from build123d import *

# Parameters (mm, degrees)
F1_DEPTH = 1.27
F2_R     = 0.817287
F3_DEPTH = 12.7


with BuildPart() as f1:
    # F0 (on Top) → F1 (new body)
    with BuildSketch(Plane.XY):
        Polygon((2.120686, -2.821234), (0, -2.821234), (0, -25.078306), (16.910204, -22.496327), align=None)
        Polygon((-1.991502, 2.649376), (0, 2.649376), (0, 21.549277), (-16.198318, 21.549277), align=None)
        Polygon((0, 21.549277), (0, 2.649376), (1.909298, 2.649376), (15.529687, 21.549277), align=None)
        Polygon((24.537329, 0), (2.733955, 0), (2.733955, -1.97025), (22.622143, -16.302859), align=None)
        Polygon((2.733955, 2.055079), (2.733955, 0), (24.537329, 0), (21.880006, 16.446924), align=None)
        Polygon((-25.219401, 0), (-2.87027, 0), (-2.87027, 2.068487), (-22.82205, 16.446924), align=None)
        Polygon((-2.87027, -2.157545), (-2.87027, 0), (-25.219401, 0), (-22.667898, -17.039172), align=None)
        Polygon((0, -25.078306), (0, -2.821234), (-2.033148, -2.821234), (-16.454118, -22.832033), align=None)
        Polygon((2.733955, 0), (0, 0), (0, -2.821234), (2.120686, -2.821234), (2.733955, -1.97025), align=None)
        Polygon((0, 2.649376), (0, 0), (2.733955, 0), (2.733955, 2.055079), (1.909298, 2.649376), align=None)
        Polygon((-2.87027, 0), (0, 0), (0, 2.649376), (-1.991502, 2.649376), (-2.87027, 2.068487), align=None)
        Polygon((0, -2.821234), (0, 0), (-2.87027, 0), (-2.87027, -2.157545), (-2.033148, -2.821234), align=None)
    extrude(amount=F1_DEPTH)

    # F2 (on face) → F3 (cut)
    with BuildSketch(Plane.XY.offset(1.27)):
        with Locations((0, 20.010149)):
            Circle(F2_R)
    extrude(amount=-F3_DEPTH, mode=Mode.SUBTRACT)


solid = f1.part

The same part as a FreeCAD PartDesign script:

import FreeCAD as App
import Part
import Sketcher

V = App.Vector
Q = App.Units.Quantity

doc = App.newDocument("Part")
body = doc.addObject("PartDesign::Body", "Body")

sketch1 = body.newObject("Sketcher::SketchObject", "Sketch")
sketch1.AttachmentSupport = (doc.getObject("XY_Plane"), [""])
sketch1.MapMode = "FlatFace"
sketch1.addGeometry(Part.LineSegment(V(-2.033148, -2.821234, 0), V(-16.454118, -22.832033, 0)), False)
sketch1.addGeometry(Part.LineSegment(V(-16.454118, -22.832033, 0), V(0, -25.078306, 0)), False)
sketch1.addGeometry(Part.LineSegment(V(0, -25.078306, 0), V(16.910204, -22.496327, 0)), False)
sketch1.addGeometry(Part.LineSegment(V(16.910204, -22.496327, 0), V(2.120686, -2.821234, 0)), False)
sketch1.addGeometry(Part.LineSegment(V(2.120686, -2.821234, 0), V(2.733955, -1.97025, 0)), False)
sketch1.addGeometry(Part.LineSegment(V(2.733955, -1.97025, 0), V(22.622143, -16.302859, 0)), False)
sketch1.addGeometry(Part.LineSegment(V(22.622143, -16.302859, 0), V(24.537329, 0, 0)), False)
sketch1.addGeometry(Part.LineSegment(V(24.537329, 0, 0), V(21.880006, 16.446924, 0)), False)
sketch1.addGeometry(Part.LineSegment(V(21.880006, 16.446924, 0), V(2.733955, 2.055079, 0)), False)
sketch1.addGeometry(Part.LineSegment(V(2.733955, 2.055079, 0), V(1.909298, 2.649376, 0)), False)
sketch1.addGeometry(Part.LineSegment(V(1.909298, 2.649376, 0), V(15.529687, 21.549277, 0)), False)
sketch1.addGeometry(Part.LineSegment(V(15.529687, 21.549277, 0), V(-16.198318, 21.549277, 0)), False)
sketch1.addGeometry(Part.LineSegment(V(-16.198318, 21.549277, 0), V(-1.991502, 2.649376, 0)), False)
sketch1.addGeometry(Part.LineSegment(V(-1.991502, 2.649376, 0), V(-2.87027, 2.068487, 0)), False)
sketch1.addGeometry(Part.LineSegment(V(-2.87027, 2.068487, 0), V(-22.82205, 16.446924, 0)), False)
sketch1.addGeometry(Part.LineSegment(V(-22.82205, 16.446924, 0), V(-25.219401, 0, 0)), False)
sketch1.addGeometry(Part.LineSegment(V(-25.219401, 0, 0), V(-22.667898, -17.039172, 0)), False)
sketch1.addGeometry(Part.LineSegment(V(-22.667898, -17.039172, 0), V(-2.87027, -2.157545, 0)), False)
sketch1.addGeometry(Part.LineSegment(V(-2.87027, -2.157545, 0), V(-2.033148, -2.821234, 0)), False)
sketch1.addConstraint(Sketcher.Constraint("Coincident", 0, 2, 1, 1))
sketch1.addConstraint(Sketcher.Constraint("Coincident", 1, 2, 2, 1))
sketch1.addConstraint(Sketcher.Constraint("Coincident", 2, 2, 3, 1))
sketch1.addConstraint(Sketcher.Constraint("Coincident", 3, 2, 4, 1))
sketch1.addConstraint(Sketcher.Constraint("Coincident", 4, 2, 5, 1))
sketch1.addConstraint(Sketcher.Constraint("Coincident", 5, 2, 6, 1))
sketch1.addConstraint(Sketcher.Constraint("Coincident", 6, 2, 7, 1))
sketch1.addConstraint(Sketcher.Constraint("Coincident", 7, 2, 8, 1))
sketch1.addConstraint(Sketcher.Constraint("Coincident", 8, 2, 9, 1))
sketch1.addConstraint(Sketcher.Constraint("Coincident", 9, 2, 10, 1))
sketch1.addConstraint(Sketcher.Constraint("Coincident", 10, 2, 11, 1))
sketch1.addConstraint(Sketcher.Constraint("Coincident", 11, 2, 12, 1))
sketch1.addConstraint(Sketcher.Constraint("Coincident", 12, 2, 13, 1))
sketch1.addConstraint(Sketcher.Constraint("Coincident", 13, 2, 14, 1))
sketch1.addConstraint(Sketcher.Constraint("Coincident", 14, 2, 15, 1))
sketch1.addConstraint(Sketcher.Constraint("Coincident", 15, 2, 16, 1))
sketch1.addConstraint(Sketcher.Constraint("Coincident", 16, 2, 17, 1))
sketch1.addConstraint(Sketcher.Constraint("Coincident", 17, 2, 18, 1))
sketch1.addConstraint(Sketcher.Constraint("Coincident", 18, 2, 0, 1))
sketch1.addConstraint(Sketcher.Constraint("Horizontal", 11))
sketch1.addConstraint(Sketcher.Constraint("PointOnObject", 1, 2, -2))
sketch1.addConstraint(Sketcher.Constraint("PointOnObject", 6, 2, -1))
sketch1.addConstraint(Sketcher.Constraint("PointOnObject", 15, 2, -1))
sketch1.addConstraint(Sketcher.Constraint("DistanceX", 0, 2, -1, 1, Q("0.6477999 in")))
sketch1.addConstraint(Sketcher.Constraint("Distance", 3, Q("24.6138 mm")))
sketch1.addConstraint(Sketcher.Constraint("DistanceX", 15, 2, -1, 1, Q("25.219401 mm")))
sketch1.addConstraint(Sketcher.Constraint("DistanceX", 16, 2, -1, 1, Q("22.667898 mm")))
sketch1.addConstraint(Sketcher.Constraint("DistanceY", 0, 2, 3, 2, Q("20.010799 mm")))
sketch1.addConstraint(Sketcher.Constraint("DistanceY", 9, 2, 10, 2, Q("18.899901 mm")))
sketch1.addConstraint(Sketcher.Constraint("DistanceY", 8, 2, 10, 2, Q("19.494198 mm")))
sketch1.addConstraint(Sketcher.Constraint("DistanceX", 12, 2, 9, 2, Q("3.9008 mm")))
sketch1.addConstraint(Sketcher.Constraint("DistanceY", 12, 2, 11, 2, Q("18.899901 mm")))
sketch1.addConstraint(Sketcher.Constraint("DistanceX", 15, 2, 12, 2, Q("23.227899 mm")))
sketch1.addConstraint(Sketcher.Constraint("Distance", 4, Q("1.048939 mm")))
sketch1.addConstraint(Sketcher.Constraint("Distance", 5, Q("24.514561 mm")))
sketch1.addConstraint(Sketcher.Constraint("Distance", 8, Q("23.951962 mm")))
sketch1.addConstraint(Sketcher.Constraint("Distance", 9, Q("1.016488 mm")))
sketch1.addConstraint(Sketcher.Constraint("Distance", 10, Q("23.296379 mm")))
sketch1.addConstraint(Sketcher.Constraint("Distance", 15, Q("16.620728 mm")))
sketch1.addConstraint(Sketcher.Constraint("Distance", 16, Q("17.229148 mm")))
sketch1.addConstraint(Sketcher.Constraint("DistanceX", 11, 2, 11, 1, Q("31.728005 mm")))
sketch1.addConstraint(Sketcher.Constraint("DistanceY", 4, 2, -1, 1, Q("1.97025 mm")))
sketch1.addConstraint(Sketcher.Constraint("DistanceY", 5, 2, -1, 1, Q("16.302859 mm")))
sketch1.addConstraint(Sketcher.Constraint("DistanceX", -1, 1, 6, 2, Q("24.537329 mm")))
sketch1.addConstraint(Sketcher.Constraint("DistanceY", -1, 1, 8, 2, Q("2.055079 mm")))
sketch1.addConstraint(Sketcher.Constraint("DistanceX", 13, 2, -1, 1, Q("2.87027 mm")))
sketch1.addConstraint(Sketcher.Constraint("DistanceX", 14, 2, -1, 1, Q("22.82205 mm")))
sketch1.addConstraint(Sketcher.Constraint("DistanceX", 17, 2, -1, 1, Q("2.87027 mm")))
sketch1.addConstraint(Sketcher.Constraint("DistanceX", 18, 2, -1, 1, Q("2.033148 mm")))
sketch1.addConstraint(Sketcher.Constraint("DistanceY", 1, 2, 2, 2, Q("2.581979 mm")))
sketch1.addConstraint(Sketcher.Constraint("DistanceX", 3, 2, 2, 2, Q("14.789518 mm")))
sketch1.addConstraint(Sketcher.Constraint("DistanceX", 3, 2, 4, 2, Q("0.613269 mm")))
sketch1.addConstraint(Sketcher.Constraint("DistanceX", 0, 2, 5, 2, Q("39.076261 mm")))
sketch1.addConstraint(Sketcher.Constraint("DistanceX", 4, 2, 7, 2, Q("19.146051 mm")))
sketch1.addConstraint(Sketcher.Constraint("DistanceY", 13, 2, 12, 2, Q("0.580889 mm")))
sketch1.addConstraint(Sketcher.Constraint("DistanceY", 17, 2, 12, 2, Q("4.806921 mm")))
sketch1.addConstraint(Sketcher.Constraint("DistanceY", 18, 2, 17, 2, Q("0.663689 mm")))
pad1 = body.newObject("PartDesign::Pad", "Pad")
pad1.Profile = sketch1
pad1.Length = Q("0.05 in")

sketch2 = body.newObject("Sketcher::SketchObject", "Sketch001")
sketch2.AttachmentSupport = (doc.getObject("XY_Plane"), [""])
sketch2.MapMode = "FlatFace"
sketch2.AttachmentOffset = App.Placement(V(0, 0, 0.05 * 25.4), App.Rotation())
sketch2.addGeometry(Part.Circle(V(0, 20, 0), V(0, 0, 1), 0.8), False)
sketch2.addConstraint(Sketcher.Constraint("PointOnObject", 0, 3, -2))
sketch2.addConstraint(Sketcher.Constraint("Diameter", 0, Q("1.634574 mm")))
sketch2.addConstraint(Sketcher.Constraint("DistanceY", -1, 1, 0, 3, Q("20.010149 mm")))
pocket1 = body.newObject("PartDesign::Pocket", "Pocket")
pocket1.Profile = sketch2
pocket1.Length = Q("0.5 in")

doc.recompute()
